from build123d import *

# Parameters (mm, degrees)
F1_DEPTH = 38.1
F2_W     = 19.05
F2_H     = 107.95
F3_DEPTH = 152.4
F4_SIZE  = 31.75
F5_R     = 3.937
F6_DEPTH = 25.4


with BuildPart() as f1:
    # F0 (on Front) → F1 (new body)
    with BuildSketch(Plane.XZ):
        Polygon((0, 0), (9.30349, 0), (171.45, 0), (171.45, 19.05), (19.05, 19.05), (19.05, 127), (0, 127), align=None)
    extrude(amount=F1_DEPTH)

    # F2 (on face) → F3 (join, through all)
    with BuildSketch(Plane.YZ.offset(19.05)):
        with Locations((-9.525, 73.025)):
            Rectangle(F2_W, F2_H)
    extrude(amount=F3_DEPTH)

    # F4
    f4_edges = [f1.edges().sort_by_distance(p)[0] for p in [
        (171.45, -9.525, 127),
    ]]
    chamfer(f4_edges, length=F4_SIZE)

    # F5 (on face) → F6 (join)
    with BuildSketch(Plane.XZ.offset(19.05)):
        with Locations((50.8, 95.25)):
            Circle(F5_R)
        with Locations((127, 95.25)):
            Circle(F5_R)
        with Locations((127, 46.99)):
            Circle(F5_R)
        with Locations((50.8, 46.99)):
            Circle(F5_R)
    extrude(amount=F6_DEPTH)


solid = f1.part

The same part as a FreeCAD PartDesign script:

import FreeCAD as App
import Part
import Sketcher
Q = App.Units.Quantity


def edges_at(feature, points):
    """Names of the edges that pass closest to the given points."""
    edges = feature.Shape.Edges
    near = lambda p: min(range(len(edges)), key=lambda i: edges[i].distToShape(Part.Vertex(*p))[0])
    return sorted({f"Edge{near(p) + 1}" for p in points})

doc = App.newDocument("Part")
params = doc.addObject("Spreadsheet::Sheet", "Params")
for row, (alias, value) in enumerate([
    ("sketch1_width", "6 in"),
    ("sketch1_height", "5 in"),
    ("sketch1_width2", "6.75 in"),
    ("pad1_length", "1.5 in"),
    ("sketch2_width", "0.75 in"),
    ("sketch2_height", "4.25 in"),
    ("pad2_length", "6 in"),
    ("chamfer_size", "1.25 in"),
    ("sketch3_diameter", "0.31 in"),
    ("pad3_length", "1 in"),
], start=1):
    params.set(f"A{row}", alias)
    params.set(f"B{row}", "=" + value)
    params.setAlias(f"B{row}", alias)

body = doc.addObject("PartDesign::Body", "Body")

# Sketch on XZ plane
sketch1 = body.newObject("Sketcher::SketchObject", "Sketch")
sketch1.AttachmentSupport = (doc.getObject("XZ_Plane"), [""])
sketch1.MapMode = "FlatFace"
sketch1.addGeometry([
    Part.LineSegment(App.Vector(0, 0, 0), App.Vector(171.45, 0, 0)),  # 0
    Part.LineSegment(App.Vector(171.45, 0, 0), App.Vector(171.45, 19.05, 0)),  # 1
    Part.LineSegment(App.Vector(171.45, 19.05, 0), App.Vector(19.05, 19.05, 0)),  # 2
    Part.LineSegment(App.Vector(19.05, 19.05, 0), App.Vector(19.05, 127, 0)),  # 3
    Part.LineSegment(App.Vector(19.05, 127, 0), App.Vector(0, 127, 0)),  # 4
    Part.LineSegment(App.Vector(0, 127, 0), App.Vector(0, 0, 0)),  # 5
], False)
sketch1.addConstraint([
    Sketcher.Constraint("Coincident", 0, 2, 1, 1),
    Sketcher.Constraint("Coincident", 1, 2, 2, 1),
    Sketcher.Constraint("Coincident", 2, 2, 3, 1),
    Sketcher.Constraint("Coincident", 3, 2, 4, 1),
    Sketcher.Constraint("Coincident", 4, 2, 5, 1),
    Sketcher.Constraint("Coincident", 5, 2, 0, 1),
    Sketcher.Constraint("Horizontal", 0),
    Sketcher.Constraint("Vertical", 1),
    Sketcher.Constraint("Horizontal", 2),
    Sketcher.Constraint("Vertical", 3),
    Sketcher.Constraint("Horizontal", 4),
    Sketcher.Constraint("Vertical", 5),
    Sketcher.Constraint("Coincident", 5, 2, -1, 1),
    Sketcher.Constraint("Equal", 4, 1),
    Sketcher.Constraint("DistanceX", 2, 2, 2, 1, Q("6 in")),
    Sketcher.Constraint("DistanceY", 5, 2, 5, 1, Q("5 in")),
    Sketcher.Constraint("DistanceX", 0, 1, 0, 2, Q("6.75 in")),
])
sketch1.setExpression("Constraints[14]", "Params.sketch1_width")
sketch1.setExpression("Constraints[15]", "Params.sketch1_height")
sketch1.setExpression("Constraints[16]", "Params.sketch1_width2")
pad1 = body.newObject("PartDesign::Pad", "Pad")
pad1.Profile = sketch1
pad1.setExpression("Length", "Params.pad1_length")

# Sketch on YZ plane
sketch2 = body.newObject("Sketcher::SketchObject", "Sketch001")
sketch2.AttachmentSupport = (doc.getObject("YZ_Plane"), [""])
sketch2.MapMode = "FlatFace"
sketch2.AttachmentOffset = App.Placement(App.Vector(0, 0, 0.75 * 25.4), App.Rotation())
sketch2.addGeometry([
    Part.LineSegment(App.Vector(-19.05, 127, 0), App.Vector(-19.05, 19.05, 0)),
    Part.LineSegment(App.Vector(-19.05, 19.05, 0), App.Vector(0, 19.05, 0)),
    Part.LineSegment(App.Vector(0, 19.05, 0), App.Vector(0, 127, 0)),
    Part.LineSegment(App.Vector(0, 127, 0), App.Vector(-19.05, 127, 0)),
], False)
sketch2.addConstraint([
    Sketcher.Constraint("Coincident", 0, 2, 1, 1),
    Sketcher.Constraint("Coincident", 1, 2, 2, 1),
    Sketcher.Constraint("Coincident", 2, 2, 3, 1),
    Sketcher.Constraint("Coincident", 3, 2, 0, 1),
    Sketcher.Constraint("Vertical", 0),
    Sketcher.Constraint("Horizontal", 1),
    Sketcher.Constraint("Vertical", 2),
    Sketcher.Constraint("Horizontal", 3),
    Sketcher.Constraint("PointOnObject", 1, 2, -2),
    Sketcher.Constraint("DistanceY", -1, 1, 2, 2, Q("5 in")),
    Sketcher.Constraint("DistanceX", 1, 1, 1, 2, Q("0.75 in")),
    Sketcher.Constraint("DistanceY", 0, 2, 0, 1, Q("4.25 in")),
])
sketch2.setExpression("Constraints[10]", "Params.sketch2_width")
sketch2.setExpression("Constraints[11]", "Params.sketch2_height")
pad2 = body.newObject("PartDesign::Pad", "Pad001")
pad2.Profile = sketch2
pad2.setExpression("Length", "Params.pad2_length")
doc.recompute()

chamfer = body.newObject("PartDesign::Chamfer", "Chamfer")
chamfer.Base = (pad2, edges_at(pad2, [(171.45, -9.525, 127)]))
chamfer.setExpression("Size", "Params.chamfer_size")

# Sketch on XZ plane
sketch3 = body.newObject("Sketcher::SketchObject", "Sketch002")
sketch3.AttachmentSupport = (doc.getObject("XZ_Plane"), [""])
sketch3.MapMode = "FlatFace"
sketch3.AttachmentOffset = App.Placement(App.Vector(0, 0, 0.75 * 25.4), App.Rotation())
sketch3.addGeometry([
    Part.Circle(App.Vector(50.8, 95.25, 0), App.Vector(0, 0, 1), 3.937),
    Part.Circle(App.Vector(127, 95.25, 0), App.Vector(0, 0, 1), 3.937),
    Part.Circle(App.Vector(127, 46.99, 0), App.Vector(0, 0, 1), 3.937),
    Part.Circle(App.Vector(50.8, 46.99, 0), App.Vector(0, 0, 1), 3.937),
], False)
sketch3.addConstraint([
    Sketcher.Constraint("Equal", 0, 1),
    Sketcher.Constraint("Equal", 1, 2),
    Sketcher.Constraint("Equal", 2, 3),
    Sketcher.Constraint("Horizontal", 0, 3, 1, 3),
    Sketcher.Constraint("Horizontal", 2, 3, 3, 3),
    Sketcher.Constraint("Vertical", 1, 3, 2, 3),
    Sketcher.Constraint("Vertical", 0, 3, 3, 3),
    Sketcher.Constraint("Diameter", 0, Q("0.31 in")),
    Sketcher.Constraint("DistanceX", -1, 1, 0, 3, Q("2 in")),
    Sketcher.Constraint("DistanceX", -1, 1, 1, 3, Q("5 in")),
    Sketcher.Constraint("DistanceY", 2, 3, 1, 3, Q("1.9 in")),
    Sketcher.Constraint("DistanceY", -1, 1, 0, 3, Q("3.75 in")),
])
sketch3.setExpression("Constraints[7]", "Params.sketch3_diameter")
pad3 = body.newObject("PartDesign::Pad", "Pad002")
pad3.Profile = sketch3
pad3.setExpression("Length", "Params.pad3_length")

doc.recompute()
